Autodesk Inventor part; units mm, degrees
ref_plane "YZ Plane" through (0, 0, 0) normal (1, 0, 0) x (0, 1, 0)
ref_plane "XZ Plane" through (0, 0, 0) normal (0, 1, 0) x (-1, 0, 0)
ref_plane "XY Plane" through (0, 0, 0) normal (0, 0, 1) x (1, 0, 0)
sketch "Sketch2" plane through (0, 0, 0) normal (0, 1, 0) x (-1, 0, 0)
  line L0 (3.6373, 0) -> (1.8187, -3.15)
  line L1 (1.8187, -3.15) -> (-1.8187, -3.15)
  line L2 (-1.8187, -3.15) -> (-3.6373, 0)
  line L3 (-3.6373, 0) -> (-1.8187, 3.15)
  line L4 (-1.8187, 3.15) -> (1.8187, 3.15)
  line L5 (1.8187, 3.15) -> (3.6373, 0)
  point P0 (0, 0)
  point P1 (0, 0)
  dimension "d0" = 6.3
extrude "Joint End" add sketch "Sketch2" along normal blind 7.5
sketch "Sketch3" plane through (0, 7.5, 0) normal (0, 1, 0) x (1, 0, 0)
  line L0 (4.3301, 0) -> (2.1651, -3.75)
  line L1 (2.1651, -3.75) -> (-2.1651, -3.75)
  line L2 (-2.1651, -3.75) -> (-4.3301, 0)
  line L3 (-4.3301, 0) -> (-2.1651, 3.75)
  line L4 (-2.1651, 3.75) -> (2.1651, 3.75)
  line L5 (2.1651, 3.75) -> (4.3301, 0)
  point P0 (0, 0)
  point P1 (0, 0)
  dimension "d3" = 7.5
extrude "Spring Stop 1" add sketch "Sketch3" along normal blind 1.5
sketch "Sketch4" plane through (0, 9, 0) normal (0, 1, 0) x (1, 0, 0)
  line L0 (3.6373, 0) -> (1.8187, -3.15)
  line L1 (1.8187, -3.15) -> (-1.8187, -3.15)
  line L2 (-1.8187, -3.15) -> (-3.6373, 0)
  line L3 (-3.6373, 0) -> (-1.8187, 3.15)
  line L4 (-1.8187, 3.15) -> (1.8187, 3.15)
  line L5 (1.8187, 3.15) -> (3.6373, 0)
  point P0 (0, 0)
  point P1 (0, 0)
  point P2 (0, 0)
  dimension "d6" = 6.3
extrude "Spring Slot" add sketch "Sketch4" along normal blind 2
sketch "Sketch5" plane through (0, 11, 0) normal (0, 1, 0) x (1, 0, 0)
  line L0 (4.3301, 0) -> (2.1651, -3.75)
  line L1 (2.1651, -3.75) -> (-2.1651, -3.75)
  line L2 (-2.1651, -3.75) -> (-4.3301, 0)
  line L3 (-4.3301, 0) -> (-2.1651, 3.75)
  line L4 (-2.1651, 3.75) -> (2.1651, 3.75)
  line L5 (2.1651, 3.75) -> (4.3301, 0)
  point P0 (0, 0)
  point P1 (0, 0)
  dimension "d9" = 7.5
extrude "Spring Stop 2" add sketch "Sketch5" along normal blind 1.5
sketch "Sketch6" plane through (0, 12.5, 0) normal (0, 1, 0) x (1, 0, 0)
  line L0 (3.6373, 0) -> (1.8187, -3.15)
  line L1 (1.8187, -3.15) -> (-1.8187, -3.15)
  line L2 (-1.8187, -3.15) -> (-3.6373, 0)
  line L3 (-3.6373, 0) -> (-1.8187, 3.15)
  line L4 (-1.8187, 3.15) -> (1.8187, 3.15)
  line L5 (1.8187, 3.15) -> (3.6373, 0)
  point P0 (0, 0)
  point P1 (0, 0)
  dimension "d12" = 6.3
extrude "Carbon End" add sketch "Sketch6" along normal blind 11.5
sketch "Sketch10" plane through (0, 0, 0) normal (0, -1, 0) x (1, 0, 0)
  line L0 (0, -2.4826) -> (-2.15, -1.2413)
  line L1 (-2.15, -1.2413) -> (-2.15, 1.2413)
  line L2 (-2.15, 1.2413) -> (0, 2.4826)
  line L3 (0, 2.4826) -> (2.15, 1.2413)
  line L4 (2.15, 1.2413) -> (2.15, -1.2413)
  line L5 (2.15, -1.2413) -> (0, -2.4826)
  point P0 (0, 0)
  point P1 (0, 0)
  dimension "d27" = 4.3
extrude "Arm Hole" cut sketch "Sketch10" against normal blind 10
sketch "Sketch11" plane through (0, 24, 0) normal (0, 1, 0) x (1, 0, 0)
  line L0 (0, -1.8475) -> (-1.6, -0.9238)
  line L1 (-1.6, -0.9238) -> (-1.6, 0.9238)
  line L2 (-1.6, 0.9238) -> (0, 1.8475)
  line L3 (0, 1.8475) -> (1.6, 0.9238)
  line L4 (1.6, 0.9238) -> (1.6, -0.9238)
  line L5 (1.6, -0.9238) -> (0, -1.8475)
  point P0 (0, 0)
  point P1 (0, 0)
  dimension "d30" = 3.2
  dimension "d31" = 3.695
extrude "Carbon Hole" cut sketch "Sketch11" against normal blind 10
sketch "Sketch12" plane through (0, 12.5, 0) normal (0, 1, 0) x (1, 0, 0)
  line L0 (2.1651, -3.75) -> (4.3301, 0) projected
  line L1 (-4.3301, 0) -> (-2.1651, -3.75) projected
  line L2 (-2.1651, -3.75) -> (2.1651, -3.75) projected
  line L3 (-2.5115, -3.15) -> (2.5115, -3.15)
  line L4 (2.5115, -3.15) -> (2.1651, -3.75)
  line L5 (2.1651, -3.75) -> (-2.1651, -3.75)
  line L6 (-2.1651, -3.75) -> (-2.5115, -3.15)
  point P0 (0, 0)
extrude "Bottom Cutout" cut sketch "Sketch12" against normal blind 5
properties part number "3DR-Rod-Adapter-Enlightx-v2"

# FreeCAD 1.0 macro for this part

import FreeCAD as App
import Part
import Sketcher
from FreeCAD import Vector
Q = App.Units.Quantity

doc = App.newDocument("Part")
body = doc.addObject("PartDesign::Body", "Body")

sketch1 = doc.addObject("Sketcher::SketchObject", "Sketch")
body.addObject(sketch1)
sketch1.AttachmentSupport = (doc.XZ_Plane, [""])
sketch1.MapMode = "FlatFace"
sketch1.addGeometry(Part.LineSegment(Vector(-1.8, -3.1, 0), Vector(-3.6, 0, 0)), False)
sketch1.addGeometry(Part.LineSegment(Vector(-3.6, 0, 0), Vector(-1.8, 3.1, 0)), False)
sketch1.addGeometry(Part.LineSegment(Vector(-1.8, 3.1, 0), Vector(1.8, 3.1, 0)), False)
sketch1.addGeometry(Part.LineSegment(Vector(1.8, 3.1, 0), Vector(3.6, 0, 0)), False)
sketch1.addGeometry(Part.LineSegment(Vector(3.6, 0, 0), Vector(1.8, -3.1, 0)), False)
sketch1.addGeometry(Part.LineSegment(Vector(1.8, -3.1, 0), Vector(-1.8, -3.1, 0)), False)
sketch1.addConstraint(Sketcher.Constraint("Coincident", 0, 2, 1, 1))
sketch1.addConstraint(Sketcher.Constraint("Coincident", 1, 2, 2, 1))
sketch1.addConstraint(Sketcher.Constraint("Coincident", 2, 2, 3, 1))
sketch1.addConstraint(Sketcher.Constraint("Coincident", 3, 2, 4, 1))
sketch1.addConstraint(Sketcher.Constraint("Coincident", 4, 2, 5, 1))
sketch1.addConstraint(Sketcher.Constraint("Coincident", 5, 2, 0, 1))
sketch1.addConstraint(Sketcher.Constraint("Horizontal", 2))
sketch1.addConstraint(Sketcher.Constraint("Horizontal", 5))
sketch1.addConstraint(Sketcher.Constraint("Symmetric", 0, 2, 3, 2, -1, 1))
sketch1.addConstraint(Sketcher.Constraint("Symmetric", 1, 2, 4, 2, -1, 1))
sketch1.addConstraint(Sketcher.Constraint("PointOnObject", 0, 2, -1))
sketch1.addConstraint(Sketcher.Constraint("Parallel", 0, 3))
sketch1.addConstraint(Sketcher.Constraint("Vertical", 2, 2, 4, 2))
sketch1.addConstraint(Sketcher.Constraint("DistanceY", 4, 2, 2, 2, 6.3))
sketch1.addConstraint(Sketcher.Constraint("Angle", 0, Q("119.9993 deg")))
sketch1.addConstraint(Sketcher.Constraint("DistanceX", 2, 1, 2, 2, 3.6374))
pad1 = doc.addObject("PartDesign::Pad", "Pad")
body.addObject(pad1)
pad1.Profile = sketch1
pad1.Length = 7.5
pad1.Reversed = True

sketch2 = doc.addObject("Sketcher::SketchObject", "Sketch001")
body.addObject(sketch2)
sketch2.AttachmentSupport = (doc.XZ_Plane, [""])
sketch2.MapMode = "FlatFace"
sketch2.AttachmentOffset = App.Placement(Vector(0, 0, -7.5), App.Rotation())
sketch2.addGeometry(Part.LineSegment(Vector(2.2, 3.8, 0), Vector(4.3, 0, 0)), False)
sketch2.addGeometry(Part.LineSegment(Vector(4.3, 0, 0), Vector(2.2, -3.8, 0)), False)
sketch2.addGeometry(Part.LineSegment(Vector(2.2, -3.8, 0), Vector(-2.2, -3.8, 0)), False)
sketch2.addGeometry(Part.LineSegment(Vector(-2.2, -3.8, 0), Vector(-4.3, 0, 0)), False)
sketch2.addGeometry(Part.LineSegment(Vector(-4.3, 0, 0), Vector(-2.2, 3.8, 0)), False)
sketch2.addGeometry(Part.LineSegment(Vector(-2.2, 3.8, 0), Vector(2.2, 3.8, 0)), False)
sketch2.addConstraint(Sketcher.Constraint("Coincident", 0, 2, 1, 1))
sketch2.addConstraint(Sketcher.Constraint("Coincident", 1, 2, 2, 1))
sketch2.addConstraint(Sketcher.Constraint("Coincident", 2, 2, 3, 1))
sketch2.addConstraint(Sketcher.Constraint("Coincident", 3, 2, 4, 1))
sketch2.addConstraint(Sketcher.Constraint("Coincident", 4, 2, 5, 1))
sketch2.addConstraint(Sketcher.Constraint("Coincident", 5, 2, 0, 1))
sketch2.addConstraint(Sketcher.Constraint("Horizontal", 2))
sketch2.addConstraint(Sketcher.Constraint("Horizontal", 5))
sketch2.addConstraint(Sketcher.Constraint("Symmetric", 0, 2, 3, 2, -1, 1))
sketch2.addConstraint(Sketcher.Constraint("Symmetric", 1, 2, 4, 2, -1, 1))
sketch2.addConstraint(Sketcher.Constraint("PointOnObject", 0, 2, -1))
sketch2.addConstraint(Sketcher.Constraint("Parallel", 0, 3))
sketch2.addConstraint(Sketcher.Constraint("Vertical", 2, 2, 4, 2))
sketch2.addConstraint(Sketcher.Constraint("DistanceY", 2, 2, 4, 2, 7.5))
sketch2.addConstraint(Sketcher.Constraint("Angle", 0, Q("-60.0007 deg")))
sketch2.addConstraint(Sketcher.Constraint("DistanceX", -1, 1, 0, 2, 4.33))
pad2 = doc.addObject("PartDesign::Pad", "Pad001")
body.addObject(pad2)
pad2.Profile = sketch2
pad2.Length = 1.5
pad2.Reversed = True

sketch3 = doc.addObject("Sketcher::SketchObject", "Sketch002")
body.addObject(sketch3)
sketch3.AttachmentSupport = (doc.XZ_Plane, [""])
sketch3.MapMode = "FlatFace"
sketch3.AttachmentOffset = App.Placement(Vector(0, 0, -9), App.Rotation())
sketch3.addGeometry(Part.LineSegment(Vector(1.8, 3.1, 0), Vector(3.6, 0, 0)), False)
sketch3.addGeometry(Part.LineSegment(Vector(3.6, 0, 0), Vector(1.8, -3.1, 0)), False)
sketch3.addGeometry(Part.LineSegment(Vector(1.8, -3.1, 0), Vector(-1.8, -3.1, 0)), False)
sketch3.addGeometry(Part.LineSegment(Vector(-1.8, -3.1, 0), Vector(-3.6, 0, 0)), False)
sketch3.addGeometry(Part.LineSegment(Vector(-3.6, 0, 0), Vector(-1.8, 3.1, 0)), False)
sketch3.addGeometry(Part.LineSegment(Vector(-1.8, 3.1, 0), Vector(1.8, 3.1, 0)), False)
sketch3.addConstraint(Sketcher.Constraint("Coincident", 0, 2, 1, 1))
sketch3.addConstraint(Sketcher.Constraint("Coincident", 1, 2, 2, 1))
sketch3.addConstraint(Sketcher.Constraint("Coincident", 2, 2, 3, 1))
sketch3.addConstraint(Sketcher.Constraint("Coincident", 3, 2, 4, 1))
sketch3.addConstraint(Sketcher.Constraint("Coincident", 4, 2, 5, 1))
sketch3.addConstraint(Sketcher.Constraint("Coincident", 5, 2, 0, 1))
sketch3.addConstraint(Sketcher.Constraint("Horizontal", 2))
sketch3.addConstraint(Sketcher.Constraint("Horizontal", 5))
sketch3.addConstraint(Sketcher.Constraint("Symmetric", 0, 2, 3, 2, -1, 1))
sketch3.addConstraint(Sketcher.Constraint("Symmetric", 1, 2, 4, 2, -1, 1))
sketch3.addConstraint(Sketcher.Constraint("PointOnObject", 0, 2, -1))
sketch3.addConstraint(Sketcher.Constraint("Parallel", 0, 3))
sketch3.addConstraint(Sketcher.Constraint("Vertical", 2, 2, 4, 2))
sketch3.addConstraint(Sketcher.Constraint("DistanceY", 2, 2, 4, 2, 6.3))
sketch3.addConstraint(Sketcher.Constraint("Angle", 0, Q("-60.0007 deg")))
sketch3.addConstraint(Sketcher.Constraint("DistanceX", 2, 2, 2, 1, 3.6374))
pad3 = doc.addObject("PartDesign::Pad", "Pad002")
body.addObject(pad3)
pad3.Profile = sketch3
pad3.Length = 2
pad3.Reversed = True

sketch4 = doc.addObject("Sketcher::SketchObject", "Sketch003")
body.addObject(sketch4)
sketch4.AttachmentSupport = (doc.XZ_Plane, [""])
sketch4.MapMode = "FlatFace"
sketch4.AttachmentOffset = App.Placement(Vector(0, 0, -11), App.Rotation())
sketch4.addGeometry(Part.LineSegment(Vector(2.2, 3.8, 0), Vector(4.3, 0, 0)), False)
sketch4.addGeometry(Part.LineSegment(Vector(4.3, 0, 0), Vector(2.2, -3.8, 0)), False)
sketch4.addGeometry(Part.LineSegment(Vector(2.2, -3.8, 0), Vector(-2.2, -3.8, 0)), False)
sketch4.addGeometry(Part.LineSegment(Vector(-2.2, -3.8, 0), Vector(-4.3, 0, 0)), False)
sketch4.addGeometry(Part.LineSegment(Vector(-4.3, 0, 0), Vector(-2.2, 3.8, 0)), False)
sketch4.addGeometry(Part.LineSegment(Vector(-2.2, 3.8, 0), Vector(2.2, 3.8, 0)), False)
sketch4.addConstraint(Sketcher.Constraint("Coincident", 0, 2, 1, 1))
sketch4.addConstraint(Sketcher.Constraint("Coincident", 1, 2, 2, 1))
sketch4.addConstraint(Sketcher.Constraint("Coincident", 2, 2, 3, 1))
sketch4.addConstraint(Sketcher.Constraint("Coincident", 3, 2, 4, 1))
sketch4.addConstraint(Sketcher.Constraint("Coincident", 4, 2, 5, 1))
sketch4.addConstraint(Sketcher.Constraint("Coincident", 5, 2, 0, 1))
sketch4.addConstraint(Sketcher.Constraint("Horizontal", 2))
sketch4.addConstraint(Sketcher.Constraint("Horizontal", 5))
sketch4.addConstraint(Sketcher.Constraint("Symmetric", 0, 2, 3, 2, -1, 1))
sketch4.addConstraint(Sketcher.Constraint("Symmetric", 1, 2, 4, 2, -1, 1))
sketch4.addConstraint(Sketcher.Constraint("PointOnObject", 0, 2, -1))
sketch4.addConstraint(Sketcher.Constraint("Parallel", 0, 3))
sketch4.addConstraint(Sketcher.Constraint("Vertical", 2, 2, 4, 2))
sketch4.addConstraint(Sketcher.Constraint("DistanceY", 2, 2, 4, 2, 7.5))
sketch4.addConstraint(Sketcher.Constraint("Angle", 0, Q("-60.0007 deg")))
sketch4.addConstraint(Sketcher.Constraint("DistanceX", -1, 1, 0, 2, 4.33))
pad4 = doc.addObject("PartDesign::Pad", "Pad003")
body.addObject(pad4)
pad4.Profile = sketch4
pad4.Length = 1.5
pad4.Reversed = True

sketch5 = doc.addObject("Sketcher::SketchObject", "Sketch004")
body.addObject(sketch5)
sketch5.AttachmentSupport = (doc.XZ_Plane, [""])
sketch5.MapMode = "FlatFace"
sketch5.AttachmentOffset = App.Placement(Vector(0, 0, -12.5), App.Rotation())
sketch5.addGeometry(Part.LineSegment(Vector(1.8, 3.1, 0), Vector(3.6, 0, 0)), False)
sketch5.addGeometry(Part.LineSegment(Vector(3.6, 0, 0), Vector(1.8, -3.1, 0)), False)
sketch5.addGeometry(Part.LineSegment(Vector(1.8, -3.1, 0), Vector(-1.8, -3.1, 0)), False)
sketch5.addGeometry(Part.LineSegment(Vector(-1.8, -3.1, 0), Vector(-3.6, 0, 0)), False)
sketch5.addGeometry(Part.LineSegment(Vector(-3.6, 0, 0), Vector(-1.8, 3.1, 0)), False)
sketch5.addGeometry(Part.LineSegment(Vector(-1.8, 3.1, 0), Vector(1.8, 3.1, 0)), False)
sketch5.addConstraint(Sketcher.Constraint("Coincident", 0, 2, 1, 1))
sketch5.addConstraint(Sketcher.Constraint("Coincident", 1, 2, 2, 1))
sketch5.addConstraint(Sketcher.Constraint("Coincident", 2, 2, 3, 1))
sketch5.addConstraint(Sketcher.Constraint("Coincident", 3, 2, 4, 1))
sketch5.addConstraint(Sketcher.Constraint("Coincident", 4, 2, 5, 1))
sketch5.addConstraint(Sketcher.Constraint("Coincident", 5, 2, 0, 1))
sketch5.addConstraint(Sketcher.Constraint("Horizontal", 2))
sketch5.addConstraint(Sketcher.Constraint("Horizontal", 5))
sketch5.addConstraint(Sketcher.Constraint("Symmetric", 0, 2, 3, 2, -1, 1))
sketch5.addConstraint(Sketcher.Constraint("Symmetric", 1, 2, 4, 2, -1, 1))
sketch5.addConstraint(Sketcher.Constraint("PointOnObject", 0, 2, -1))
sketch5.addConstraint(Sketcher.Constraint("Parallel", 0, 3))
sketch5.addConstraint(Sketcher.Constraint("Vertical", 2, 2, 4, 2))
sketch5.addConstraint(Sketcher.Constraint("DistanceY", 2, 2, 4, 2, 6.3))
sketch5.addConstraint(Sketcher.Constraint("Angle", 0, Q("-60.0007 deg")))
sketch5.addConstraint(Sketcher.Constraint("DistanceX", 2, 2, 2, 1, 3.6374))
pad5 = doc.addObject("PartDesign::Pad", "Pad004")
body.addObject(pad5)
pad5.Profile = sketch5
pad5.Length = 11.5
pad5.Reversed = True

sketch6 = doc.addObject("Sketcher::SketchObject", "Sketch005")
body.addObject(sketch6)
sketch6.AttachmentSupport = (doc.XZ_Plane, [""])
sketch6.MapMode = "FlatFace"
sketch6.addGeometry(Part.LineSegment(Vector(-2.1, -1.2, 0), Vector(0, -2.5, 0)), False)
sketch6.addGeometry(Part.LineSegment(Vector(0, -2.5, 0), Vector(2.1, -1.2, 0)), False)
sketch6.addGeometry(Part.LineSegment(Vector(2.1, -1.2, 0), Vector(2.1, 1.2, 0)), False)
sketch6.addGeometry(Part.LineSegment(Vector(2.1, 1.2, 0), Vector(0, 2.5, 0)), False)
sketch6.addGeometry(Part.LineSegment(Vector(0, 2.5, 0), Vector(-2.1, 1.2, 0)), False)
sketch6.addGeometry(Part.LineSegment(Vector(-2.1, 1.2, 0), Vector(-2.1, -1.2, 0)), False)
sketch6.addConstraint(Sketcher.Constraint("Coincident", 0, 2, 1, 1))
sketch6.addConstraint(Sketcher.Constraint("Coincident", 1, 2, 2, 1))
sketch6.addConstraint(Sketcher.Constraint("Coincident", 2, 2, 3, 1))
sketch6.addConstraint(Sketcher.Constraint("Coincident", 3, 2, 4, 1))
sketch6.addConstraint(Sketcher.Constraint("Coincident", 4, 2, 5, 1))
sketch6.addConstraint(Sketcher.Constraint("Coincident", 5, 2, 0, 1))
sketch6.addConstraint(Sketcher.Constraint("Vertical", 2))
sketch6.addConstraint(Sketcher.Constraint("Vertical", 5))
sketch6.addConstraint(Sketcher.Constraint("Symmetric", 0, 2, 3, 2, -1, 1))
sketch6.addConstraint(Sketcher.Constraint("Symmetric", 1, 2, 4, 2, -1, 1))
sketch6.addConstraint(Sketcher.Constraint("PointOnObject", 0, 2, -2))
sketch6.addConstraint(Sketcher.Constraint("Parallel", 0, 3))
sketch6.addConstraint(Sketcher.Constraint("Horizontal", 2, 2, 4, 2))
sketch6.addConstraint(Sketcher.Constraint("DistanceX", 4, 2, 2, 2, 4.3))
sketch6.addConstraint(Sketcher.Constraint("Angle", 0, Q("-30 deg")))
sketch6.addConstraint(Sketcher.Constraint("DistanceY", 2, 1, 2, 2, 2.4826))
pocket1 = doc.addObject("PartDesign::Pocket", "Pocket")
body.addObject(pocket1)
pocket1.Profile = sketch6
pocket1.Length = 10

sketch7 = doc.addObject("Sketcher::SketchObject", "Sketch006")
body.addObject(sketch7)
sketch7.AttachmentSupport = (doc.XZ_Plane, [""])
sketch7.MapMode = "FlatFace"
sketch7.AttachmentOffset = App.Placement(Vector(0, 0, -24), App.Rotation())
sketch7.addGeometry(Part.LineSegment(Vector(-1.6, 0.9, 0), Vector(0, 1.8, 0)), False)
sketch7.addGeometry(Part.LineSegment(Vector(0, 1.8, 0), Vector(1.6, 0.9, 0)), False)
sketch7.addGeometry(Part.LineSegment(Vector(1.6, 0.9, 0), Vector(1.6, -0.9, 0)), False)
sketch7.addGeometry(Part.LineSegment(Vector(1.6, -0.9, 0), Vector(0, -1.8, 0)), False)
sketch7.addGeometry(Part.LineSegment(Vector(0, -1.8, 0), Vector(-1.6, -0.9, 0)), False)
sketch7.addGeometry(Part.LineSegment(Vector(-1.6, -0.9, 0), Vector(-1.6, 0.9, 0)), False)
sketch7.addConstraint(Sketcher.Constraint("Coincident", 0, 2, 1, 1))
sketch7.addConstraint(Sketcher.Constraint("Coincident", 1, 2, 2, 1))
sketch7.addConstraint(Sketcher.Constraint("Coincident", 2, 2, 3, 1))
sketch7.addConstraint(Sketcher.Constraint("Coincident", 3, 2, 4, 1))
sketch7.addConstraint(Sketcher.Constraint("Coincident", 4, 2, 5, 1))
sketch7.addConstraint(Sketcher.Constraint("Coincident", 5, 2, 0, 1))
sketch7.addConstraint(Sketcher.Constraint("Vertical", 2))
sketch7.addConstraint(Sketcher.Constraint("Vertical", 5))
sketch7.addConstraint(Sketcher.Constraint("Symmetric", 0, 2, 3, 2, -1, 1))
sketch7.addConstraint(Sketcher.Constraint("Symmetric", 1, 2, 4, 2, -1, 1))
sketch7.addConstraint(Sketcher.Constraint("PointOnObject", 0, 2, -2))
sketch7.addConstraint(Sketcher.Constraint("Parallel", 0, 3))
sketch7.addConstraint(Sketcher.Constraint("Horizontal", 2, 2, 4, 2))
sketch7.addConstraint(Sketcher.Constraint("DistanceX", 4, 2, 2, 2, 3.2))
sketch7.addConstraint(Sketcher.Constraint("DistanceY", 3, 2, 0, 2, 3.695))
sketch7.addConstraint(Sketcher.Constraint("DistanceY", 2, 2, 2, 1, 1.8476))
pocket2 = doc.addObject("PartDesign::Pocket", "Pocket001")
body.addObject(pocket2)
pocket2.Profile = sketch7
pocket2.Length = 10
pocket2.Reversed = True

sketch8 = doc.addObject("Sketcher::SketchObject", "Sketch007")
body.addObject(sketch8)
sketch8.AttachmentSupport = (doc.XZ_Plane, [""])
sketch8.MapMode = "FlatFace"
sketch8.AttachmentOffset = App.Placement(Vector(0, 0, -12.5), App.Rotation())
sketch8.addGeometry(Part.LineSegment(Vector(-2.2, 3.8, 0), Vector(2.2, 3.8, 0)), False)
sketch8.addGeometry(Part.LineSegment(Vector(2.2, 3.8, 0), Vector(2.5, 3.1, 0)), False)
sketch8.addGeometry(Part.LineSegment(Vector(2.5, 3.1, 0), Vector(-2.5, 3.1, 0)), False)
sketch8.addGeometry(Part.LineSegment(Vector(-2.5, 3.1, 0), Vector(-2.2, 3.8, 0)), False)
sketch8.addConstraint(Sketcher.Constraint("Coincident", 0, 2, 1, 1))
sketch8.addConstraint(Sketcher.Constraint("Coincident", 1, 2, 2, 1))
sketch8.addConstraint(Sketcher.Constraint("Coincident", 2, 2, 3, 1))
sketch8.addConstraint(Sketcher.Constraint("Coincident", 3, 2, 0, 1))
sketch8.addConstraint(Sketcher.Constraint("Horizontal", 0))
sketch8.addConstraint(Sketcher.Constraint("Horizontal", 2))
sketch8.addConstraint(Sketcher.Constraint("Equal", 1, 3))
sketch8.addConstraint(Sketcher.Constraint("Angle", 1, Q("-60.0007 deg")))
sketch8.addConstraint(Sketcher.Constraint("DistanceY", 1, 2, 0, 2, 0.6))
sketch8.addConstraint(Sketcher.Constraint("DistanceX", 2, 2, 2, 1, 5.023))
sketch8.addConstraint(Sketcher.Constraint("DistanceY", -1, 1, 0, 2, 3.75))
sketch8.addConstraint(Sketcher.Constraint("DistanceX", -1, 1, 0, 2, 2.165))
pocket3 = doc.addObject("PartDesign::Pocket", "Pocket002")
body.addObject(pocket3)
pocket3.Profile = sketch8
pocket3.Length = 5
pocket3.Reversed = True

doc.recompute()
